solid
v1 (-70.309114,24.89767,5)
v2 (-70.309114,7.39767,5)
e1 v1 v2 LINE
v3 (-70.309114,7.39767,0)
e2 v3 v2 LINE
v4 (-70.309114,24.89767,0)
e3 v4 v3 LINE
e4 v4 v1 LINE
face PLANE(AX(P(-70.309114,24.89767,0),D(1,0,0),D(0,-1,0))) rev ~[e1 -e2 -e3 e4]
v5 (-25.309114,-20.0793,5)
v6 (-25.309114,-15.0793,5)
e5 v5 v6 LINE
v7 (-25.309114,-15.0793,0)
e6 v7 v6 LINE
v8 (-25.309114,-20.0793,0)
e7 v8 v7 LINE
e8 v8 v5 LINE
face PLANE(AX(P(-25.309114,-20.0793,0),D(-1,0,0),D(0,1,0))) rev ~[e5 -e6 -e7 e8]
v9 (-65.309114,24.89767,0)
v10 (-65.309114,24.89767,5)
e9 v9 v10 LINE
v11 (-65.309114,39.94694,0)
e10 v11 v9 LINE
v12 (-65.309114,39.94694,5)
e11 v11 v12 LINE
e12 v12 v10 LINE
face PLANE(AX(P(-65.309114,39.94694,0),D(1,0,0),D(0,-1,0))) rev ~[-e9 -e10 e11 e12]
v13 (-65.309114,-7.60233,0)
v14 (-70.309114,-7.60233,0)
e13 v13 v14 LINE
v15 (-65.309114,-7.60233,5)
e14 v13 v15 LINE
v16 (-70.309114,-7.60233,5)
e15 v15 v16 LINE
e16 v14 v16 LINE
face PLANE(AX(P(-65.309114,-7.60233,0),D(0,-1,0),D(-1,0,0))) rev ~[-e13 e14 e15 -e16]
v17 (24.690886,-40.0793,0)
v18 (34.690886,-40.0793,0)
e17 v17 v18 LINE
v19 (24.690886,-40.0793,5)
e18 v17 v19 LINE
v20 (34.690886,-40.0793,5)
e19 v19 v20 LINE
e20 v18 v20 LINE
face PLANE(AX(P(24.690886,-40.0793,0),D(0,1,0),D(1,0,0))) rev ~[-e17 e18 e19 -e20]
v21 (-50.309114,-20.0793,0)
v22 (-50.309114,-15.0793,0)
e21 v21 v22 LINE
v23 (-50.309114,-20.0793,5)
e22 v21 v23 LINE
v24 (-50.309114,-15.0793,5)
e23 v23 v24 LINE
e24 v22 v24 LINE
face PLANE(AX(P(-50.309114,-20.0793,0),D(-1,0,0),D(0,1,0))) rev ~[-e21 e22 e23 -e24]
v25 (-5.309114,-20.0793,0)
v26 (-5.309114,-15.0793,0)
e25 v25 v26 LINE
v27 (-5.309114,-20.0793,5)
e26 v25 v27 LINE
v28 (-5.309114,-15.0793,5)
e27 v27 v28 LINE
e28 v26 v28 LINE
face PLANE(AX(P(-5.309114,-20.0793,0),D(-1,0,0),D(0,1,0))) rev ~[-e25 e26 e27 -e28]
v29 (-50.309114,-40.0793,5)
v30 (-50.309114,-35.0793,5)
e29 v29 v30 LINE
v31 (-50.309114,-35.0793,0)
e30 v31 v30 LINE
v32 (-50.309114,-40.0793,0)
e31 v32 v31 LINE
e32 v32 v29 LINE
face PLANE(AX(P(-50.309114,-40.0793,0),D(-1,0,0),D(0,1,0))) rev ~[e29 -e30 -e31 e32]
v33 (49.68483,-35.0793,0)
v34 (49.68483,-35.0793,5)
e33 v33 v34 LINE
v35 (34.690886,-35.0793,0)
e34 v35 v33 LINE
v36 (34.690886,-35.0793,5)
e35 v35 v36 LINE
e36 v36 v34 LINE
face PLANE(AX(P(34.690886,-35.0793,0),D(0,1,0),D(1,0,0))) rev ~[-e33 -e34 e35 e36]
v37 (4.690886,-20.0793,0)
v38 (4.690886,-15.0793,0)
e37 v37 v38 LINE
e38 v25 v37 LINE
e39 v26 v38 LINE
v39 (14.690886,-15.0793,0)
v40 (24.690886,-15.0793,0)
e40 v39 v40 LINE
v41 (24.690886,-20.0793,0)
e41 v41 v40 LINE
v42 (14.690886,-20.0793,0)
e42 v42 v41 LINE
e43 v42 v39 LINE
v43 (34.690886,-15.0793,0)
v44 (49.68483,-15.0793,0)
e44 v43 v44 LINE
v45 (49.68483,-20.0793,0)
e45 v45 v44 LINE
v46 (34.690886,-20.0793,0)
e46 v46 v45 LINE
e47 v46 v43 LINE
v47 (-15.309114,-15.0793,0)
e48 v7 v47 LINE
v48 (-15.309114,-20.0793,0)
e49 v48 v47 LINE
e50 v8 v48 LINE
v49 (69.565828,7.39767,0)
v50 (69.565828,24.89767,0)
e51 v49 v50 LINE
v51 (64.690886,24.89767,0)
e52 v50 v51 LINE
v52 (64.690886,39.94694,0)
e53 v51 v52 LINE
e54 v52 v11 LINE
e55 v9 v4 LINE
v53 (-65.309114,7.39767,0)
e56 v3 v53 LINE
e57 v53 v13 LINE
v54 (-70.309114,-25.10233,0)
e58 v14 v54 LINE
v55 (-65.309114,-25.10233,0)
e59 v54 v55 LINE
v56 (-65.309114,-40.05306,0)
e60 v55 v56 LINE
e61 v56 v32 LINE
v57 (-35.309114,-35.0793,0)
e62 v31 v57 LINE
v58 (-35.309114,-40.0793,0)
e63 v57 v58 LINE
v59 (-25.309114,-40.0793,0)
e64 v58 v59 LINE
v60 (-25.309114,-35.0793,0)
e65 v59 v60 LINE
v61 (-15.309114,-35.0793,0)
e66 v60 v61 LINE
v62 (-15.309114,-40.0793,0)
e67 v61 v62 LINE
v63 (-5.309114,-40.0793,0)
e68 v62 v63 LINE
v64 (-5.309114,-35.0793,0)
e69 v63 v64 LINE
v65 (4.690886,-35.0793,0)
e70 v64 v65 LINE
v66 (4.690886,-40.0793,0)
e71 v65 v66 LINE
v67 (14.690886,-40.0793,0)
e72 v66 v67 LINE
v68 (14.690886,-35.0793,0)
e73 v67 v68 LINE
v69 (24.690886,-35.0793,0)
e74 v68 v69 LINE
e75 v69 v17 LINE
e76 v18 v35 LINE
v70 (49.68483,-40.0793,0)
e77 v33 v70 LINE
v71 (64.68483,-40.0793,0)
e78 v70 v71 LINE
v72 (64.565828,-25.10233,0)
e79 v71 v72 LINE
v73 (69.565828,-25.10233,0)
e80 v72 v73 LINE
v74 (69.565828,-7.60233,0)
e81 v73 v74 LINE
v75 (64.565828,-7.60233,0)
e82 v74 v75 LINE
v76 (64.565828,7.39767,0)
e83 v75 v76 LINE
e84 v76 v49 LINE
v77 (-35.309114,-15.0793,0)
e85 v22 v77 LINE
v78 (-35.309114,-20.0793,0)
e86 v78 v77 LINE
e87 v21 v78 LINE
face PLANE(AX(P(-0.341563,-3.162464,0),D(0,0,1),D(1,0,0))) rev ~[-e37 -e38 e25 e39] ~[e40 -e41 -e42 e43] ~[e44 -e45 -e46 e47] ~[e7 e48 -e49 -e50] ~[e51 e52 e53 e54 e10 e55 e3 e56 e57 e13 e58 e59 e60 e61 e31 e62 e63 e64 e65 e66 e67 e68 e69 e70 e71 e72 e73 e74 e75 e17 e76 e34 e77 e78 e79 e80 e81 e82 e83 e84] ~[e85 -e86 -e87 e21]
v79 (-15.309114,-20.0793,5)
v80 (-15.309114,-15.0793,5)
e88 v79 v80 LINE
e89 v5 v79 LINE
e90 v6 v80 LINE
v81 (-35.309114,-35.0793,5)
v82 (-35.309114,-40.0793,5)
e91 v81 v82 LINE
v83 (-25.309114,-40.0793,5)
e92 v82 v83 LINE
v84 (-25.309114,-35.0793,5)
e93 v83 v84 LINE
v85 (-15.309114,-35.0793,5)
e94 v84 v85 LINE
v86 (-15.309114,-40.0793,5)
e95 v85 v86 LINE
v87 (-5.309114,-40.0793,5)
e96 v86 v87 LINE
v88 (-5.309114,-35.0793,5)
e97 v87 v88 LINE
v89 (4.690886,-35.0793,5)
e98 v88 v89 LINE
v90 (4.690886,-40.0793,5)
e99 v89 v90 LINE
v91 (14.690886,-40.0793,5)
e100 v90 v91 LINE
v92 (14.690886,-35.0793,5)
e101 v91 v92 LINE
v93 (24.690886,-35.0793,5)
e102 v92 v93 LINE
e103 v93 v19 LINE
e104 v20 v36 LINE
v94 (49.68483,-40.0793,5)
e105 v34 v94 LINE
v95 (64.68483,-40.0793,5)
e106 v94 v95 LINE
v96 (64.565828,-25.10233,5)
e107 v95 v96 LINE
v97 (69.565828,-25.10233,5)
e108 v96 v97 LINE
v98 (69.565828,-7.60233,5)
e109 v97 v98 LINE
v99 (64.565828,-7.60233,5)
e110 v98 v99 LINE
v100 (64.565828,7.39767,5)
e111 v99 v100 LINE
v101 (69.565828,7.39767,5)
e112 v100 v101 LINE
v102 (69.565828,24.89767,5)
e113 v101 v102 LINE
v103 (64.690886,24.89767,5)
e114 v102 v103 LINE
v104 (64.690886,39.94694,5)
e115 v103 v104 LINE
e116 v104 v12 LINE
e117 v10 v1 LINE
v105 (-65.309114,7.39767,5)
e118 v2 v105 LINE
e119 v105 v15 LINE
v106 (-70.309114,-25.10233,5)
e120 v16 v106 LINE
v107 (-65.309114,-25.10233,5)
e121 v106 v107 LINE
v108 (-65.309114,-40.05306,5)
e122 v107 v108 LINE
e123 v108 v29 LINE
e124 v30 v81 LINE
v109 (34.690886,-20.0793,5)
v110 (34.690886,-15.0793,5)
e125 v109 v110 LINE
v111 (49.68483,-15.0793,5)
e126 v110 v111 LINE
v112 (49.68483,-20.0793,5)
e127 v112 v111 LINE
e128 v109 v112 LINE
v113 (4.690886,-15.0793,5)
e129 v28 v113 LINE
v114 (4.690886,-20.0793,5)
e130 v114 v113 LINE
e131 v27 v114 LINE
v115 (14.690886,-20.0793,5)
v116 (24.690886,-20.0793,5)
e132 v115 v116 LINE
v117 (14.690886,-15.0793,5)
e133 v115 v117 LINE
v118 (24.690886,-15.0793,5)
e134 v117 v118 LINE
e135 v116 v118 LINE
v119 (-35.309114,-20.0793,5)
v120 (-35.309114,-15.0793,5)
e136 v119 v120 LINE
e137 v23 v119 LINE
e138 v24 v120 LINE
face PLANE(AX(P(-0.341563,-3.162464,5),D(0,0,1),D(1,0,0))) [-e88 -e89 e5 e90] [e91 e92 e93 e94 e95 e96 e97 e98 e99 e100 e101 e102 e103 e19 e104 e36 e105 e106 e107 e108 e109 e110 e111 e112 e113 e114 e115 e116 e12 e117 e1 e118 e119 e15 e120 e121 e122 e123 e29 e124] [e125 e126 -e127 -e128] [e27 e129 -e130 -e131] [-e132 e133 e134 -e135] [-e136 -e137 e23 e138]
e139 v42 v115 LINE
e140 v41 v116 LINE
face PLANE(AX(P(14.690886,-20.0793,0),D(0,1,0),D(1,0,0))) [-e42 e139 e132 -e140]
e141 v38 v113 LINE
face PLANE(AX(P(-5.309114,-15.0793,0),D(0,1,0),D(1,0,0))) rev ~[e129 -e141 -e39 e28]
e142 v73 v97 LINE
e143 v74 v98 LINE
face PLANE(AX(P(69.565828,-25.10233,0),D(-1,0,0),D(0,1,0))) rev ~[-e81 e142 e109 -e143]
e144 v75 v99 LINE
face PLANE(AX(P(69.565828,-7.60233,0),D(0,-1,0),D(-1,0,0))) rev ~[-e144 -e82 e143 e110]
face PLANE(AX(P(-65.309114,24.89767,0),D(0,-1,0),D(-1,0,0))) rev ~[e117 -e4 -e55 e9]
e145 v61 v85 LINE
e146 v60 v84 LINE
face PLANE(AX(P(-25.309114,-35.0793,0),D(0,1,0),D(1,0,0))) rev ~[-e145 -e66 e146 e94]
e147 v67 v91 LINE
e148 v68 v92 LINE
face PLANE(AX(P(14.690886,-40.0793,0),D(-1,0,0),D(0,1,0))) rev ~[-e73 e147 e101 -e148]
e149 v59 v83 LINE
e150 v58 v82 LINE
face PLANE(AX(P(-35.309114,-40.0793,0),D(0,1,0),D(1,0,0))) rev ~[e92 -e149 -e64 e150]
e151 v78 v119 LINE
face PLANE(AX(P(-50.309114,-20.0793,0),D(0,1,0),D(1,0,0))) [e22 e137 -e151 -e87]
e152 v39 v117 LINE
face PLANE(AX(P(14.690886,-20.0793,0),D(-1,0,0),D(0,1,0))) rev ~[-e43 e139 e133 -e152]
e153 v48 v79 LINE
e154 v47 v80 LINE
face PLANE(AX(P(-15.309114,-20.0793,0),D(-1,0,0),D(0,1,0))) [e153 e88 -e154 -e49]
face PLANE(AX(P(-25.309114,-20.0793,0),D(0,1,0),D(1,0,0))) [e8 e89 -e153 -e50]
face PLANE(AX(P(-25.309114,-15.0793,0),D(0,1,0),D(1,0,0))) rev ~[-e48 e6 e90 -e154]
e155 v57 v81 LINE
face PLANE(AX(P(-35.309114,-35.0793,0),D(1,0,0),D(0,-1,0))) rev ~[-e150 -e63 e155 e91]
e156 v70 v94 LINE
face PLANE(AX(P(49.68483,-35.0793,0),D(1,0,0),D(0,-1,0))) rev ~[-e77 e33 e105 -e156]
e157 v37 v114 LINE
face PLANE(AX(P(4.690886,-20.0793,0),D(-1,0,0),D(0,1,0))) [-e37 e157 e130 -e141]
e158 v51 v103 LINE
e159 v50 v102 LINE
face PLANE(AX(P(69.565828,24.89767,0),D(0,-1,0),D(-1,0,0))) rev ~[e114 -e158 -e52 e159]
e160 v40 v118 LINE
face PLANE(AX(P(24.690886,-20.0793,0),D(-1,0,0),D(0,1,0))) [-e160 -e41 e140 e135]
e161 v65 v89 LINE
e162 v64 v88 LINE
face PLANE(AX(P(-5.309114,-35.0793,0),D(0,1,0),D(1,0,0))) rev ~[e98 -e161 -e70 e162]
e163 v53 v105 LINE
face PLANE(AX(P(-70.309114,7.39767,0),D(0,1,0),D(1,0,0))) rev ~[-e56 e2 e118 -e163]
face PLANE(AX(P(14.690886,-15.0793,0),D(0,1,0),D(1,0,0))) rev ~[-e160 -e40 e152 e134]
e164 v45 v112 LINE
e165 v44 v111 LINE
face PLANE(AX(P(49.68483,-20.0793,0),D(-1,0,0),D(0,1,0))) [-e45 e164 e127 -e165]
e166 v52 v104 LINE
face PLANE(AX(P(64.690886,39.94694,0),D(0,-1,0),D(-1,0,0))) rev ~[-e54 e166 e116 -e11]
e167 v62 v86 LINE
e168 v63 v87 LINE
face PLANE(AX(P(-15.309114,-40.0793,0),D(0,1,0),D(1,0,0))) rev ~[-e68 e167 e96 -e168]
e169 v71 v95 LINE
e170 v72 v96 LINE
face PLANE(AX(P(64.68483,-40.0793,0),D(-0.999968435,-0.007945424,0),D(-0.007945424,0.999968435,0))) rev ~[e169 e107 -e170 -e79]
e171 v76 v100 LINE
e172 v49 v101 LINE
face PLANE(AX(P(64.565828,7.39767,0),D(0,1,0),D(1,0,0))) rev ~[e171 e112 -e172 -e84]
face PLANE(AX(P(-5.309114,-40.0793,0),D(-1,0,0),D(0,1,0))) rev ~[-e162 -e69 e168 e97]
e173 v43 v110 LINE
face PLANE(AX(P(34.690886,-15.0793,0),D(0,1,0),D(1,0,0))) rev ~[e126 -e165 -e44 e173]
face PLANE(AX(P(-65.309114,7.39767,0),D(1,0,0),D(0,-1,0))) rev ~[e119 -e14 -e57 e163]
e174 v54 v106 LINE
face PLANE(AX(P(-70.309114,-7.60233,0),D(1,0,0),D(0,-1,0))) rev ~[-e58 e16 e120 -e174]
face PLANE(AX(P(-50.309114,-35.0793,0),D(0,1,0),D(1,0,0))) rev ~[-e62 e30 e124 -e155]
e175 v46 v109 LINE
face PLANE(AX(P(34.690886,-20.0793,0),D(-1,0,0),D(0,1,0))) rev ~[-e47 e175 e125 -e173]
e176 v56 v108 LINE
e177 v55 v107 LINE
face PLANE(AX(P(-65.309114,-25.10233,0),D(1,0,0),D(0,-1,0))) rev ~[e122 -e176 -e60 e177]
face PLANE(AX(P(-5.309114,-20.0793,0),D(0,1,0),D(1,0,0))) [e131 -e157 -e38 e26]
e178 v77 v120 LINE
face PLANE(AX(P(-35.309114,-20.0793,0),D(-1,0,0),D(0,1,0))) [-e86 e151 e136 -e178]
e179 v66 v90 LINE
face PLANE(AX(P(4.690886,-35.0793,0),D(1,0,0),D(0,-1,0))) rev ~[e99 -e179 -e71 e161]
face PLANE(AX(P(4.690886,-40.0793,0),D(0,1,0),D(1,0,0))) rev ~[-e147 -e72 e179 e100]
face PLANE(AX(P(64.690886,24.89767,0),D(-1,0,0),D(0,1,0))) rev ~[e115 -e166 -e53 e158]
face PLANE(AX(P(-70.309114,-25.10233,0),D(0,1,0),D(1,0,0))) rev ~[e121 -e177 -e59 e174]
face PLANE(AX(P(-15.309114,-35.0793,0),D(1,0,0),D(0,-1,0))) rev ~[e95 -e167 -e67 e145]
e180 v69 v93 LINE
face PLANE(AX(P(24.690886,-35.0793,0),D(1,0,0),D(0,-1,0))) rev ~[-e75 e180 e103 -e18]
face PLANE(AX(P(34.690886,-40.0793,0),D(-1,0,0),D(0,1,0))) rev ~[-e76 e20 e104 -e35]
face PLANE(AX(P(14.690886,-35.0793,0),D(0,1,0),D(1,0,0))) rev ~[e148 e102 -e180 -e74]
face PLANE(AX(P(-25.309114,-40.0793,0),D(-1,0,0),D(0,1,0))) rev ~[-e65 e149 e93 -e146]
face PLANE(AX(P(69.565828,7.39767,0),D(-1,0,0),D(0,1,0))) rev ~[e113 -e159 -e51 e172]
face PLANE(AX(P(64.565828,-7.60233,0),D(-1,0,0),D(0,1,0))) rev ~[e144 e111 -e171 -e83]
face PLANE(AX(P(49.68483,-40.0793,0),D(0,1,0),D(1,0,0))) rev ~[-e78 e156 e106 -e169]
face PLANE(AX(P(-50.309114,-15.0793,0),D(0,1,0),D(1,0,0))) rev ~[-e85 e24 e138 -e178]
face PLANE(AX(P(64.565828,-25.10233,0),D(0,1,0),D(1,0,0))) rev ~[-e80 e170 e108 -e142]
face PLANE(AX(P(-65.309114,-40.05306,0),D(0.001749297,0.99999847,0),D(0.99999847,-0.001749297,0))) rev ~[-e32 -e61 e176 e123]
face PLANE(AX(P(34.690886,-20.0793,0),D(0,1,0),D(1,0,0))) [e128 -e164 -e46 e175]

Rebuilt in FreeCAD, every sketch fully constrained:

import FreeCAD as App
import Part
import Sketcher


def add_polygon(sketch, points):
    """Adds a closed chain of lines whose ends are joined by coincident constraints."""
    first, n = sketch.GeometryCount, len(points)
    for a, b in zip(points, points[1:] + points[:1]):
        sketch.addGeometry(Part.LineSegment(App.Vector(*a, 0), App.Vector(*b, 0)), False)
    for i in range(n):
        sketch.addConstraint(Sketcher.Constraint("Coincident", first + i, 2, first + (i + 1) % n, 1))

doc = App.newDocument("Part")
params = doc.addObject("Spreadsheet::Sheet", "Params")
for row, (alias, value) in enumerate([
    ("sketch1_width", "130 mm"),
    ("sketch1_width2", "5 mm"),
    ("sketch1_width3", "15 mm"),
    ("sketch1_width4", "10 mm"),
    ("sketch1_height", "17.5 mm"),
    ("pad1_length", "5 mm"),
], start=1):
    params.set(f"A{row}", alias)
    params.set(f"B{row}", "=" + value)
    params.setAlias(f"B{row}", alias)

body = doc.addObject("PartDesign::Body", "Body")

sketch1 = doc.addObject("Sketcher::SketchObject", "Sketch")
body.addObject(sketch1)
sketch1.AttachmentSupport = (doc.XY_Plane, [""])
sketch1.MapMode = "FlatFace"
add_polygon(sketch1, [(64.690886, 24.89767), (64.690886, 39.94694), (-65.309114, 39.94694), (-65.309114, 24.89767), (-70.309114, 24.89767), (-70.309114, 7.39767), (-65.309114, 7.39767), (-65.309114, -7.60233), (-70.309114, -7.60233), (-70.309114, -25.10233), (-65.309114, -25.10233), (-65.309114, -40.05306), (-50.309114, -40.0793), (-50.309114, -35.0793), (-35.309114, -35.0793), (-35.309114, -40.0793), (-25.309114, -40.0793), (-25.309114, -35.0793), (-15.309114, -35.0793), (-15.309114, -40.0793), (-5.309114, -40.0793), (-5.309114, -35.0793), (4.690886, -35.0793), (4.690886, -40.0793), (14.690886, -40.0793), (14.690886, -35.0793), (24.690886, -35.0793), (24.690886, -40.0793), (34.690886, -40.0793), (34.690886, -35.0793), (49.68483, -35.0793), (49.68483, -40.0793), (64.68483, -40.0793), (64.565828, -25.10233), (69.565828, -25.10233), (69.565828, -7.60233), (64.565828, -7.60233), (64.565828, 7.39767), (69.565828, 7.39767), (69.565828, 24.89767)])
add_polygon(sketch1, [(-35.309114, -20.0793), (-50.309114, -20.0793), (-50.309114, -15.0793), (-35.309114, -15.0793)])
add_polygon(sketch1, [(-15.309114, -20.0793), (-25.309114, -20.0793), (-25.309114, -15.0793), (-15.309114, -15.0793)])
add_polygon(sketch1, [(4.690886, -20.0793), (-5.309114, -20.0793), (-5.309114, -15.0793), (4.690886, -15.0793)])
add_polygon(sketch1, [(24.690886, -20.0793), (14.690886, -20.0793), (14.690886, -15.0793), (24.690886, -15.0793)])
add_polygon(sketch1, [(49.68483, -20.0793), (34.690886, -20.0793), (34.690886, -15.0793), (49.68483, -15.0793)])
sketch1.addConstraint([
    Sketcher.Constraint("Vertical", 0),
    Sketcher.Constraint("Horizontal", 1),
    Sketcher.Constraint("Vertical", 2),
    Sketcher.Constraint("Horizontal", 3),
    Sketcher.Constraint("Vertical", 4),
    Sketcher.Constraint("Horizontal", 5),
    Sketcher.Constraint("Vertical", 6),
    Sketcher.Constraint("Horizontal", 7),
    Sketcher.Constraint("Vertical", 8),
    Sketcher.Constraint("Horizontal", 9),
    Sketcher.Constraint("Vertical", 10),
    Sketcher.Constraint("Vertical", 12),
    Sketcher.Constraint("Horizontal", 13),
    Sketcher.Constraint("Vertical", 14),
    Sketcher.Constraint("Horizontal", 15),
    Sketcher.Constraint("Vertical", 16),
    Sketcher.Constraint("Horizontal", 17),
    Sketcher.Constraint("Vertical", 18),
    Sketcher.Constraint("Horizontal", 19),
    Sketcher.Constraint("Vertical", 20),
    Sketcher.Constraint("Horizontal", 21),
    Sketcher.Constraint("Vertical", 22),
    Sketcher.Constraint("Horizontal", 23),
    Sketcher.Constraint("Vertical", 24),
    Sketcher.Constraint("Horizontal", 25),
    Sketcher.Constraint("Vertical", 26),
    Sketcher.Constraint("Horizontal", 27),
    Sketcher.Constraint("Vertical", 28),
    Sketcher.Constraint("Horizontal", 29),
    Sketcher.Constraint("Vertical", 30),
    Sketcher.Constraint("Horizontal", 31),
    Sketcher.Constraint("Horizontal", 33),
    Sketcher.Constraint("Vertical", 34),
    Sketcher.Constraint("Horizontal", 35),
    Sketcher.Constraint("Vertical", 36),
    Sketcher.Constraint("Horizontal", 37),
    Sketcher.Constraint("Vertical", 38),
    Sketcher.Constraint("Horizontal", 39),
    Sketcher.Constraint("Horizontal", 40),
    Sketcher.Constraint("Vertical", 41),
    Sketcher.Constraint("Horizontal", 42),
    Sketcher.Constraint("Vertical", 43),
    Sketcher.Constraint("Horizontal", 44),
    Sketcher.Constraint("Vertical", 45),
    Sketcher.Constraint("Horizontal", 46),
    Sketcher.Constraint("Vertical", 47),
    Sketcher.Constraint("Horizontal", 48),
    Sketcher.Constraint("Vertical", 49),
    Sketcher.Constraint("Horizontal", 50),
    Sketcher.Constraint("Vertical", 51),
    Sketcher.Constraint("Horizontal", 52),
    Sketcher.Constraint("Vertical", 53),
    Sketcher.Constraint("Horizontal", 54),
    Sketcher.Constraint("Vertical", 55),
    Sketcher.Constraint("Horizontal", 56),
    Sketcher.Constraint("Vertical", 57),
    Sketcher.Constraint("Horizontal", 58),
    Sketcher.Constraint("Vertical", 59),
    Sketcher.Constraint("Horizontal", 11, 2, 14, 2),
    Sketcher.Constraint("Horizontal", 13, 2, 16, 2),
    Sketcher.Constraint("Horizontal", 15, 2, 18, 2),
    Sketcher.Constraint("Horizontal", 17, 2, 20, 2),
    Sketcher.Constraint("Horizontal", 19, 2, 22, 2),
    Sketcher.Constraint("Horizontal", 21, 2, 24, 2),
    Sketcher.Constraint("Horizontal", 23, 2, 26, 2),
    Sketcher.Constraint("Horizontal", 25, 2, 28, 2),
    Sketcher.Constraint("Horizontal", 27, 2, 30, 2),
    Sketcher.Constraint("Horizontal", 9, 2, 32, 2),
    Sketcher.Constraint("Horizontal", 7, 2, 34, 2),
    Sketcher.Constraint("Horizontal", 5, 2, 36, 2),
    Sketcher.Constraint("Horizontal", 3, 2, 38, 2),
    Sketcher.Constraint("Horizontal", 43, 2, 44, 2),
    Sketcher.Constraint("Horizontal", 42, 2, 45, 2),
    Sketcher.Constraint("Horizontal", 47, 2, 48, 2),
    Sketcher.Constraint("Horizontal", 46, 2, 49, 2),
    Sketcher.Constraint("Horizontal", 51, 2, 52, 2),
    Sketcher.Constraint("Horizontal", 50, 2, 53, 2),
    Sketcher.Constraint("Horizontal", 55, 2, 56, 2),
    Sketcher.Constraint("Horizontal", 54, 2, 57, 2),
    Sketcher.Constraint("Vertical", 2, 2, 5, 2),
    Sketcher.Constraint("Vertical", 4, 2, 7, 2),
    Sketcher.Constraint("Vertical", 6, 2, 9, 2),
    Sketcher.Constraint("Vertical", 32, 2, 35, 2),
    Sketcher.Constraint("Vertical", 34, 2, 37, 2),
    Sketcher.Constraint("Vertical", 12, 2, 40, 2),
    Sketcher.Constraint("Vertical", 14, 2, 42, 2),
    Sketcher.Constraint("Vertical", 16, 2, 44, 2),
    Sketcher.Constraint("Vertical", 18, 2, 46, 2),
    Sketcher.Constraint("Vertical", 20, 2, 48, 2),
    Sketcher.Constraint("Vertical", 22, 2, 50, 2),
    Sketcher.Constraint("Vertical", 24, 2, 52, 2),
    Sketcher.Constraint("Vertical", 26, 2, 54, 2),
    Sketcher.Constraint("Vertical", 28, 2, 56, 2),
    Sketcher.Constraint("Vertical", 30, 2, 58, 2),
    Sketcher.Constraint("Equal", 15, 17),
    Sketcher.Constraint("Equal", 17, 19),
    Sketcher.Constraint("Equal", 19, 21),
    Sketcher.Constraint("Equal", 21, 23),
    Sketcher.Constraint("Equal", 23, 25),
    Sketcher.Constraint("Equal", 25, 27),
    Sketcher.Constraint("Equal", 13, 31),
    Sketcher.Constraint("Equal", 9, 33),
    Sketcher.Constraint("Equal", 42, 6),
    Sketcher.Constraint("Equal", 4, 8),
    Sketcher.Constraint("Equal", 37, 12),
    Sketcher.Constraint("Equal", 30, 41),
    Sketcher.Constraint("DistanceX", 1, 2, 1, 1, 130.0),
    Sketcher.Constraint("DistanceX", 3, 2, 3, 1, 5.0),
    Sketcher.Constraint("DistanceX", 13, 1, 13, 2, 15.0),
    Sketcher.Constraint("DistanceX", 15, 1, 15, 2, 10.0),
    Sketcher.Constraint("DistanceY", 4, 2, 4, 1, 17.5),
    Sketcher.Constraint("DistanceX", 10, 2, 11, 2, 15.0),
    Sketcher.Constraint("DistanceY", 12, 2, 40, 2, 15.0),
    Sketcher.Constraint("DistanceX", 39, 2, 39, 1, 4.874941),
    Sketcher.Constraint("DistanceY", 0, 1, 0, 2, 15.04927),
    Sketcher.Constraint("DistanceY", 10, 2, 10, 1, 14.95073),
    Sketcher.Constraint("DistanceY", 11, 2, -1, 1, 40.0793),
    Sketcher.Constraint("DistanceX", 29, 1, 29, 2, 14.993943),
    Sketcher.Constraint("DistanceY", -1, 1, 0, 2, 39.94694),
    Sketcher.Constraint("DistanceX", -1, 1, 29, 2, 49.68483),
])
sketch1.setExpression("Constraints[166]", "Params.sketch1_width")
sketch1.setExpression("Constraints[167]", "Params.sketch1_width2")
sketch1.setExpression("Constraints[168]", "Params.sketch1_width3")
sketch1.setExpression("Constraints[169]", "Params.sketch1_width4")
sketch1.setExpression("Constraints[170]", "Params.sketch1_height")
pad1 = doc.addObject("PartDesign::Pad", "Pad")
body.addObject(pad1)
pad1.Profile = sketch1
pad1.setExpression("Length", "Params.pad1_length")

doc.recompute()
